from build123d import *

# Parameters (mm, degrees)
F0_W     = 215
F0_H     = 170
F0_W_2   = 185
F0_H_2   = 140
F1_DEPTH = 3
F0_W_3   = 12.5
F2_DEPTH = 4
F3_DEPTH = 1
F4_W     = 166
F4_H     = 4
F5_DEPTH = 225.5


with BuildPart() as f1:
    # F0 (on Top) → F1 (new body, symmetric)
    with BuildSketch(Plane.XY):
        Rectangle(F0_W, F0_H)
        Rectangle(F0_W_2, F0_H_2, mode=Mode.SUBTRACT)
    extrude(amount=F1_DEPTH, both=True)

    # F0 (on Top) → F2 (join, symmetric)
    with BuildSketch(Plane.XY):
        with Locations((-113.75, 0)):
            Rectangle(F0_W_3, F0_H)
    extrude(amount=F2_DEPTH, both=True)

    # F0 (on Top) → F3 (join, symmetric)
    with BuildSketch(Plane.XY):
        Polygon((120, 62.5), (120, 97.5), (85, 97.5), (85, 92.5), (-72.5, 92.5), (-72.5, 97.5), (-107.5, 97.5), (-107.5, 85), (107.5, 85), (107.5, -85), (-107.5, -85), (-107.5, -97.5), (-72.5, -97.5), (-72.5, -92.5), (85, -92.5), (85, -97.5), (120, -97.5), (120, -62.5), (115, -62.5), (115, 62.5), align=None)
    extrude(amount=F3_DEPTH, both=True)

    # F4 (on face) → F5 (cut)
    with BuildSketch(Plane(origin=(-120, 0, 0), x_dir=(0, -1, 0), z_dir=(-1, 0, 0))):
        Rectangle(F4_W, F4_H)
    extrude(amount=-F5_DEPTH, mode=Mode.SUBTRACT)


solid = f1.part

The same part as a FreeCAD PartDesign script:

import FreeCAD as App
import Part
import Sketcher

doc = App.newDocument("Part")
params = doc.addObject("Spreadsheet::Sheet", "Params")
for row, (alias, value) in enumerate([
    ("sketch1_width", "215 mm"),
    ("sketch1_width2", "185 mm"),
    ("sketch1_height", "170 mm"),
    ("sketch1_height2", "140 mm"),
    ("pad1_length", "6 mm"),
    ("sketch2_height", "170 mm"),
    ("sketch2_width", "12.5 mm"),
    ("pad2_length", "8 mm"),
    ("sketch3_width", "35 mm"),
    ("sketch3_width2", "215 mm"),
    ("sketch3_width3", "5 mm"),
    ("sketch3_height", "170 mm"),
    ("sketch3_height2", "125 mm"),
    ("pad3_length", "2 mm"),
    ("sketch4_width", "166 mm"),
    ("sketch4_height", "4 mm"),
    ("pocket1_length", "225.5 mm"),
], start=1):
    params.set(f"A{row}", alias)
    params.set(f"B{row}", "=" + value)
    params.setAlias(f"B{row}", alias)

body = doc.addObject("PartDesign::Body", "Body")

sketch1 = doc.addObject("Sketcher::SketchObject", "Sketch")
body.addObject(sketch1)
sketch1.AttachmentSupport = (doc.XY_Plane, [""])
sketch1.MapMode = "FlatFace"
sketch1.addGeometry([
    Part.LineSegment(App.Vector(-108, 85, 0), App.Vector(-108, -85, 0)),
    Part.LineSegment(App.Vector(-108, -85, 0), App.Vector(108, -85, 0)),
    Part.LineSegment(App.Vector(108, -85, 0), App.Vector(108, 85, 0)),
    Part.LineSegment(App.Vector(108, 85, 0), App.Vector(-108, 85, 0)),
    Part.LineSegment(App.Vector(92, -70, 0), App.Vector(-92, -70, 0)),
    Part.LineSegment(App.Vector(-92, -70, 0), App.Vector(-92, 70, 0)),
    Part.LineSegment(App.Vector(-92, 70, 0), App.Vector(92, 70, 0)),
    Part.LineSegment(App.Vector(92, 70, 0), App.Vector(92, -70, 0)),
], False)
sketch1.addConstraint([
    Sketcher.Constraint("Coincident", 0, 2, 1, 1),
    Sketcher.Constraint("Coincident", 1, 2, 2, 1),
    Sketcher.Constraint("Coincident", 2, 2, 3, 1),
    Sketcher.Constraint("Coincident", 3, 2, 0, 1),
    Sketcher.Constraint("Coincident", 4, 2, 5, 1),
    Sketcher.Constraint("Coincident", 5, 2, 6, 1),
    Sketcher.Constraint("Coincident", 6, 2, 7, 1),
    Sketcher.Constraint("Coincident", 7, 2, 4, 1),
    Sketcher.Constraint("Vertical", 0),
    Sketcher.Constraint("Horizontal", 1),
    Sketcher.Constraint("Vertical", 2),
    Sketcher.Constraint("Horizontal", 3),
    Sketcher.Constraint("Horizontal", 4),
    Sketcher.Constraint("Vertical", 5),
    Sketcher.Constraint("Horizontal", 6),
    Sketcher.Constraint("Vertical", 7),
    Sketcher.Constraint("Symmetric", 0, 2, 2, 2, -1, 1),
    Sketcher.Constraint("Symmetric", 4, 2, 6, 2, -1, 1),
    Sketcher.Constraint("DistanceX", 1, 1, 1, 2, 215.0),
    Sketcher.Constraint("DistanceX", 4, 2, 4, 1, 185.0),
    Sketcher.Constraint("DistanceY", 0, 2, 0, 1, 170.0),
    Sketcher.Constraint("DistanceY", 5, 1, 5, 2, 140.0),
])
sketch1.setExpression("Constraints[18]", "Params.sketch1_width")
sketch1.setExpression("Constraints[19]", "Params.sketch1_width2")
sketch1.setExpression("Constraints[20]", "Params.sketch1_height")
sketch1.setExpression("Constraints[21]", "Params.sketch1_height2")
pad1 = doc.addObject("PartDesign::Pad", "Pad")
body.addObject(pad1)
pad1.Profile = sketch1
pad1.setExpression("Length", "Params.pad1_length")
pad1.Midplane = True

sketch2 = doc.addObject("Sketcher::SketchObject", "Sketch001")
body.addObject(sketch2)
sketch2.AttachmentSupport = (doc.XY_Plane, [""])
sketch2.MapMode = "FlatFace"
sketch2.addGeometry([
    Part.LineSegment(App.Vector(-120, 85, 0), App.Vector(-120, -85, 0)),
    Part.LineSegment(App.Vector(-120, -85, 0), App.Vector(-108, -85, 0)),
    Part.LineSegment(App.Vector(-108, -85, 0), App.Vector(-108, 85, 0)),
    Part.LineSegment(App.Vector(-108, 85, 0), App.Vector(-120, 85, 0)),
], False)
sketch2.addConstraint([
    Sketcher.Constraint("Coincident", 0, 2, 1, 1),
    Sketcher.Constraint("Coincident", 1, 2, 2, 1),
    Sketcher.Constraint("Coincident", 2, 2, 3, 1),
    Sketcher.Constraint("Coincident", 3, 2, 0, 1),
    Sketcher.Constraint("Vertical", 0),
    Sketcher.Constraint("Horizontal", 1),
    Sketcher.Constraint("Vertical", 2),
    Sketcher.Constraint("Horizontal", 3),
    Sketcher.Constraint("DistanceY", 0, 2, 0, 1, 170.0),
    Sketcher.Constraint("DistanceX", 1, 1, 1, 2, 12.5),
    Sketcher.Constraint("DistanceX", 0, 2, -1, 1, 120.0),
    Sketcher.Constraint("DistanceY", 0, 2, -1, 1, 85.0),
])
sketch2.setExpression("Constraints[8]", "Params.sketch2_height")
sketch2.setExpression("Constraints[9]", "Params.sketch2_width")
pad2 = doc.addObject("PartDesign::Pad", "Pad001")
body.addObject(pad2)
pad2.Profile = sketch2
pad2.setExpression("Length", "Params.pad2_length")
pad2.Midplane = True

sketch3 = doc.addObject("Sketcher::SketchObject", "Sketch002")
body.addObject(sketch3)
sketch3.AttachmentSupport = (doc.XY_Plane, [""])
sketch3.MapMode = "FlatFace"
sketch3.addGeometry([
    Part.LineSegment(App.Vector(120, 62, 0), App.Vector(120, 98, 0)),
    Part.LineSegment(App.Vector(120, 98, 0), App.Vector(85, 98, 0)),
    Part.LineSegment(App.Vector(85, 98, 0), App.Vector(85, 92, 0)),
    Part.LineSegment(App.Vector(85, 92, 0), App.Vector(-72, 92, 0)),
    Part.LineSegment(App.Vector(-72, 92, 0), App.Vector(-72, 98, 0)),
    Part.LineSegment(App.Vector(-72, 98, 0), App.Vector(-108, 98, 0)),
    Part.LineSegment(App.Vector(-108, 98, 0), App.Vector(-108, 85, 0)),
    Part.LineSegment(App.Vector(-108, 85, 0), App.Vector(108, 85, 0)),
    Part.LineSegment(App.Vector(108, 85, 0), App.Vector(108, -85, 0)),
    Part.LineSegment(App.Vector(108, -85, 0), App.Vector(-108, -85, 0)),
    Part.LineSegment(App.Vector(-108, -85, 0), App.Vector(-108, -98, 0)),
    Part.LineSegment(App.Vector(-108, -98, 0), App.Vector(-72, -98, 0)),
    Part.LineSegment(App.Vector(-72, -98, 0), App.Vector(-72, -92, 0)),
    Part.LineSegment(App.Vector(-72, -92, 0), App.Vector(85, -92, 0)),
    Part.LineSegment(App.Vector(85, -92, 0), App.Vector(85, -98, 0)),
    Part.LineSegment(App.Vector(85, -98, 0), App.Vector(120, -98, 0)),
    Part.LineSegment(App.Vector(120, -98, 0), App.Vector(120, -62, 0)),
    Part.LineSegment(App.Vector(120, -62, 0), App.Vector(115, -62, 0)),
    Part.LineSegment(App.Vector(115, -62, 0), App.Vector(115, 62, 0)),
    Part.LineSegment(App.Vector(115, 62, 0), App.Vector(120, 62, 0)),
], False)
sketch3.addConstraint([
    Sketcher.Constraint("Coincident", 0, 2, 1, 1),
    Sketcher.Constraint("Coincident", 1, 2, 2, 1),
    Sketcher.Constraint("Coincident", 2, 2, 3, 1),
    Sketcher.Constraint("Coincident", 3, 2, 4, 1),
    Sketcher.Constraint("Coincident", 4, 2, 5, 1),
    Sketcher.Constraint("Coincident", 5, 2, 6, 1),
    Sketcher.Constraint("Coincident", 6, 2, 7, 1),
    Sketcher.Constraint("Coincident", 7, 2, 8, 1),
    Sketcher.Constraint("Coincident", 8, 2, 9, 1),
    Sketcher.Constraint("Coincident", 9, 2, 10, 1),
    Sketcher.Constraint("Coincident", 10, 2, 11, 1),
    Sketcher.Constraint("Coincident", 11, 2, 12, 1),
    Sketcher.Constraint("Coincident", 12, 2, 13, 1),
    Sketcher.Constraint("Coincident", 13, 2, 14, 1),
    Sketcher.Constraint("Coincident", 14, 2, 15, 1),
    Sketcher.Constraint("Coincident", 15, 2, 16, 1),
    Sketcher.Constraint("Coincident", 16, 2, 17, 1),
    Sketcher.Constraint("Coincident", 17, 2, 18, 1),
    Sketcher.Constraint("Coincident", 18, 2, 19, 1),
    Sketcher.Constraint("Coincident", 19, 2, 0, 1),
    Sketcher.Constraint("Vertical", 0),
    Sketcher.Constraint("Horizontal", 1),
    Sketcher.Constraint("Vertical", 2),
    Sketcher.Constraint("Horizontal", 3),
    Sketcher.Constraint("Vertical", 4),
    Sketcher.Constraint("Horizontal", 5),
    Sketcher.Constraint("Vertical", 6),
    Sketcher.Constraint("Horizontal", 7),
    Sketcher.Constraint("Vertical", 8),
    Sketcher.Constraint("Horizontal", 9),
    Sketcher.Constraint("Vertical", 10),
    Sketcher.Constraint("Horizontal", 11),
    Sketcher.Constraint("Vertical", 12),
    Sketcher.Constraint("Horizontal", 13),
    Sketcher.Constraint("Vertical", 14),
    Sketcher.Constraint("Horizontal", 15),
    Sketcher.Constraint("Vertical", 16),
    Sketcher.Constraint("Horizontal", 17),
    Sketcher.Constraint("Vertical", 18),
    Sketcher.Constraint("Horizontal", 19),
    Sketcher.Constraint("Symmetric", 6, 2, 8, 2, -1, 1),
    Sketcher.Constraint("Symmetric", 5, 2, 10, 2, -1),
    Sketcher.Constraint("Symmetric", 3, 2, 12, 2, -1),
    Sketcher.Constraint("Symmetric", 1, 2, 14, 2, -1),
    Sketcher.Constraint("Symmetric", 16, 2, 19, 2, -1),
    Sketcher.Constraint("Horizontal", 1, 2, 4, 2),
    Sketcher.Constraint("Equal", 1, 5),
    Sketcher.Constraint("Equal", 15, 0),
    Sketcher.Constraint("Equal", 19, 2),
    Sketcher.Constraint("DistanceX", 1, 2, 1, 1, 35.0),
    Sketcher.Constraint("DistanceX", 7, 1, 7, 2, 215.0),
    Sketcher.Constraint("DistanceX", 17, 2, 17, 1, 5.0),
    Sketcher.Constraint("DistanceY", 8, 2, 8, 1, 170.0),
    Sketcher.Constraint("DistanceY", 18, 1, 18, 2, 125.0),
    Sketcher.Constraint("DistanceX", 3, 2, 3, 1, 157.5),
])
sketch3.setExpression("Constraints[49]", "Params.sketch3_width")
sketch3.setExpression("Constraints[50]", "Params.sketch3_width2")
sketch3.setExpression("Constraints[51]", "Params.sketch3_width3")
sketch3.setExpression("Constraints[52]", "Params.sketch3_height")
sketch3.setExpression("Constraints[53]", "Params.sketch3_height2")
pad3 = doc.addObject("PartDesign::Pad", "Pad002")
body.addObject(pad3)
pad3.Profile = sketch3
pad3.setExpression("Length", "Params.pad3_length")
pad3.Midplane = True

sketch4 = doc.addObject("Sketcher::SketchObject", "Sketch003")
body.addObject(sketch4)
sketch4.AttachmentSupport = (doc.YZ_Plane, [""])
sketch4.MapMode = "FlatFace"
sketch4.AttachmentOffset = App.Placement(App.Vector(0, 0, -120), App.Rotation())
sketch4.addGeometry([
    Part.LineSegment(App.Vector(83, 2, 0), App.Vector(83, -2, 0)),
    Part.LineSegment(App.Vector(83, -2, 0), App.Vector(-83, -2, 0)),
    Part.LineSegment(App.Vector(-83, -2, 0), App.Vector(-83, 2, 0)),
    Part.LineSegment(App.Vector(-83, 2, 0), App.Vector(83, 2, 0)),
], False)
sketch4.addConstraint([
    Sketcher.Constraint("Coincident", 0, 2, 1, 1),
    Sketcher.Constraint("Coincident", 1, 2, 2, 1),
    Sketcher.Constraint("Coincident", 2, 2, 3, 1),
    Sketcher.Constraint("Coincident", 3, 2, 0, 1),
    Sketcher.Constraint("Vertical", 0),
    Sketcher.Constraint("Horizontal", 1),
    Sketcher.Constraint("Vertical", 2),
    Sketcher.Constraint("Horizontal", 3),
    Sketcher.Constraint("Symmetric", 0, 2, 2, 2, -1, 1),
    Sketcher.Constraint("DistanceX", 1, 2, 1, 1, 166.0),
    Sketcher.Constraint("DistanceY", 0, 2, 0, 1, 4.0),
])
sketch4.setExpression("Constraints[9]", "Params.sketch4_width")
sketch4.setExpression("Constraints[10]", "Params.sketch4_height")
pocket1 = doc.addObject("PartDesign::Pocket", "Pocket")
body.addObject(pocket1)
pocket1.Profile = sketch4
pocket1.setExpression("Length", "Params.pocket1_length")
pocket1.Reversed = True

doc.recompute()
